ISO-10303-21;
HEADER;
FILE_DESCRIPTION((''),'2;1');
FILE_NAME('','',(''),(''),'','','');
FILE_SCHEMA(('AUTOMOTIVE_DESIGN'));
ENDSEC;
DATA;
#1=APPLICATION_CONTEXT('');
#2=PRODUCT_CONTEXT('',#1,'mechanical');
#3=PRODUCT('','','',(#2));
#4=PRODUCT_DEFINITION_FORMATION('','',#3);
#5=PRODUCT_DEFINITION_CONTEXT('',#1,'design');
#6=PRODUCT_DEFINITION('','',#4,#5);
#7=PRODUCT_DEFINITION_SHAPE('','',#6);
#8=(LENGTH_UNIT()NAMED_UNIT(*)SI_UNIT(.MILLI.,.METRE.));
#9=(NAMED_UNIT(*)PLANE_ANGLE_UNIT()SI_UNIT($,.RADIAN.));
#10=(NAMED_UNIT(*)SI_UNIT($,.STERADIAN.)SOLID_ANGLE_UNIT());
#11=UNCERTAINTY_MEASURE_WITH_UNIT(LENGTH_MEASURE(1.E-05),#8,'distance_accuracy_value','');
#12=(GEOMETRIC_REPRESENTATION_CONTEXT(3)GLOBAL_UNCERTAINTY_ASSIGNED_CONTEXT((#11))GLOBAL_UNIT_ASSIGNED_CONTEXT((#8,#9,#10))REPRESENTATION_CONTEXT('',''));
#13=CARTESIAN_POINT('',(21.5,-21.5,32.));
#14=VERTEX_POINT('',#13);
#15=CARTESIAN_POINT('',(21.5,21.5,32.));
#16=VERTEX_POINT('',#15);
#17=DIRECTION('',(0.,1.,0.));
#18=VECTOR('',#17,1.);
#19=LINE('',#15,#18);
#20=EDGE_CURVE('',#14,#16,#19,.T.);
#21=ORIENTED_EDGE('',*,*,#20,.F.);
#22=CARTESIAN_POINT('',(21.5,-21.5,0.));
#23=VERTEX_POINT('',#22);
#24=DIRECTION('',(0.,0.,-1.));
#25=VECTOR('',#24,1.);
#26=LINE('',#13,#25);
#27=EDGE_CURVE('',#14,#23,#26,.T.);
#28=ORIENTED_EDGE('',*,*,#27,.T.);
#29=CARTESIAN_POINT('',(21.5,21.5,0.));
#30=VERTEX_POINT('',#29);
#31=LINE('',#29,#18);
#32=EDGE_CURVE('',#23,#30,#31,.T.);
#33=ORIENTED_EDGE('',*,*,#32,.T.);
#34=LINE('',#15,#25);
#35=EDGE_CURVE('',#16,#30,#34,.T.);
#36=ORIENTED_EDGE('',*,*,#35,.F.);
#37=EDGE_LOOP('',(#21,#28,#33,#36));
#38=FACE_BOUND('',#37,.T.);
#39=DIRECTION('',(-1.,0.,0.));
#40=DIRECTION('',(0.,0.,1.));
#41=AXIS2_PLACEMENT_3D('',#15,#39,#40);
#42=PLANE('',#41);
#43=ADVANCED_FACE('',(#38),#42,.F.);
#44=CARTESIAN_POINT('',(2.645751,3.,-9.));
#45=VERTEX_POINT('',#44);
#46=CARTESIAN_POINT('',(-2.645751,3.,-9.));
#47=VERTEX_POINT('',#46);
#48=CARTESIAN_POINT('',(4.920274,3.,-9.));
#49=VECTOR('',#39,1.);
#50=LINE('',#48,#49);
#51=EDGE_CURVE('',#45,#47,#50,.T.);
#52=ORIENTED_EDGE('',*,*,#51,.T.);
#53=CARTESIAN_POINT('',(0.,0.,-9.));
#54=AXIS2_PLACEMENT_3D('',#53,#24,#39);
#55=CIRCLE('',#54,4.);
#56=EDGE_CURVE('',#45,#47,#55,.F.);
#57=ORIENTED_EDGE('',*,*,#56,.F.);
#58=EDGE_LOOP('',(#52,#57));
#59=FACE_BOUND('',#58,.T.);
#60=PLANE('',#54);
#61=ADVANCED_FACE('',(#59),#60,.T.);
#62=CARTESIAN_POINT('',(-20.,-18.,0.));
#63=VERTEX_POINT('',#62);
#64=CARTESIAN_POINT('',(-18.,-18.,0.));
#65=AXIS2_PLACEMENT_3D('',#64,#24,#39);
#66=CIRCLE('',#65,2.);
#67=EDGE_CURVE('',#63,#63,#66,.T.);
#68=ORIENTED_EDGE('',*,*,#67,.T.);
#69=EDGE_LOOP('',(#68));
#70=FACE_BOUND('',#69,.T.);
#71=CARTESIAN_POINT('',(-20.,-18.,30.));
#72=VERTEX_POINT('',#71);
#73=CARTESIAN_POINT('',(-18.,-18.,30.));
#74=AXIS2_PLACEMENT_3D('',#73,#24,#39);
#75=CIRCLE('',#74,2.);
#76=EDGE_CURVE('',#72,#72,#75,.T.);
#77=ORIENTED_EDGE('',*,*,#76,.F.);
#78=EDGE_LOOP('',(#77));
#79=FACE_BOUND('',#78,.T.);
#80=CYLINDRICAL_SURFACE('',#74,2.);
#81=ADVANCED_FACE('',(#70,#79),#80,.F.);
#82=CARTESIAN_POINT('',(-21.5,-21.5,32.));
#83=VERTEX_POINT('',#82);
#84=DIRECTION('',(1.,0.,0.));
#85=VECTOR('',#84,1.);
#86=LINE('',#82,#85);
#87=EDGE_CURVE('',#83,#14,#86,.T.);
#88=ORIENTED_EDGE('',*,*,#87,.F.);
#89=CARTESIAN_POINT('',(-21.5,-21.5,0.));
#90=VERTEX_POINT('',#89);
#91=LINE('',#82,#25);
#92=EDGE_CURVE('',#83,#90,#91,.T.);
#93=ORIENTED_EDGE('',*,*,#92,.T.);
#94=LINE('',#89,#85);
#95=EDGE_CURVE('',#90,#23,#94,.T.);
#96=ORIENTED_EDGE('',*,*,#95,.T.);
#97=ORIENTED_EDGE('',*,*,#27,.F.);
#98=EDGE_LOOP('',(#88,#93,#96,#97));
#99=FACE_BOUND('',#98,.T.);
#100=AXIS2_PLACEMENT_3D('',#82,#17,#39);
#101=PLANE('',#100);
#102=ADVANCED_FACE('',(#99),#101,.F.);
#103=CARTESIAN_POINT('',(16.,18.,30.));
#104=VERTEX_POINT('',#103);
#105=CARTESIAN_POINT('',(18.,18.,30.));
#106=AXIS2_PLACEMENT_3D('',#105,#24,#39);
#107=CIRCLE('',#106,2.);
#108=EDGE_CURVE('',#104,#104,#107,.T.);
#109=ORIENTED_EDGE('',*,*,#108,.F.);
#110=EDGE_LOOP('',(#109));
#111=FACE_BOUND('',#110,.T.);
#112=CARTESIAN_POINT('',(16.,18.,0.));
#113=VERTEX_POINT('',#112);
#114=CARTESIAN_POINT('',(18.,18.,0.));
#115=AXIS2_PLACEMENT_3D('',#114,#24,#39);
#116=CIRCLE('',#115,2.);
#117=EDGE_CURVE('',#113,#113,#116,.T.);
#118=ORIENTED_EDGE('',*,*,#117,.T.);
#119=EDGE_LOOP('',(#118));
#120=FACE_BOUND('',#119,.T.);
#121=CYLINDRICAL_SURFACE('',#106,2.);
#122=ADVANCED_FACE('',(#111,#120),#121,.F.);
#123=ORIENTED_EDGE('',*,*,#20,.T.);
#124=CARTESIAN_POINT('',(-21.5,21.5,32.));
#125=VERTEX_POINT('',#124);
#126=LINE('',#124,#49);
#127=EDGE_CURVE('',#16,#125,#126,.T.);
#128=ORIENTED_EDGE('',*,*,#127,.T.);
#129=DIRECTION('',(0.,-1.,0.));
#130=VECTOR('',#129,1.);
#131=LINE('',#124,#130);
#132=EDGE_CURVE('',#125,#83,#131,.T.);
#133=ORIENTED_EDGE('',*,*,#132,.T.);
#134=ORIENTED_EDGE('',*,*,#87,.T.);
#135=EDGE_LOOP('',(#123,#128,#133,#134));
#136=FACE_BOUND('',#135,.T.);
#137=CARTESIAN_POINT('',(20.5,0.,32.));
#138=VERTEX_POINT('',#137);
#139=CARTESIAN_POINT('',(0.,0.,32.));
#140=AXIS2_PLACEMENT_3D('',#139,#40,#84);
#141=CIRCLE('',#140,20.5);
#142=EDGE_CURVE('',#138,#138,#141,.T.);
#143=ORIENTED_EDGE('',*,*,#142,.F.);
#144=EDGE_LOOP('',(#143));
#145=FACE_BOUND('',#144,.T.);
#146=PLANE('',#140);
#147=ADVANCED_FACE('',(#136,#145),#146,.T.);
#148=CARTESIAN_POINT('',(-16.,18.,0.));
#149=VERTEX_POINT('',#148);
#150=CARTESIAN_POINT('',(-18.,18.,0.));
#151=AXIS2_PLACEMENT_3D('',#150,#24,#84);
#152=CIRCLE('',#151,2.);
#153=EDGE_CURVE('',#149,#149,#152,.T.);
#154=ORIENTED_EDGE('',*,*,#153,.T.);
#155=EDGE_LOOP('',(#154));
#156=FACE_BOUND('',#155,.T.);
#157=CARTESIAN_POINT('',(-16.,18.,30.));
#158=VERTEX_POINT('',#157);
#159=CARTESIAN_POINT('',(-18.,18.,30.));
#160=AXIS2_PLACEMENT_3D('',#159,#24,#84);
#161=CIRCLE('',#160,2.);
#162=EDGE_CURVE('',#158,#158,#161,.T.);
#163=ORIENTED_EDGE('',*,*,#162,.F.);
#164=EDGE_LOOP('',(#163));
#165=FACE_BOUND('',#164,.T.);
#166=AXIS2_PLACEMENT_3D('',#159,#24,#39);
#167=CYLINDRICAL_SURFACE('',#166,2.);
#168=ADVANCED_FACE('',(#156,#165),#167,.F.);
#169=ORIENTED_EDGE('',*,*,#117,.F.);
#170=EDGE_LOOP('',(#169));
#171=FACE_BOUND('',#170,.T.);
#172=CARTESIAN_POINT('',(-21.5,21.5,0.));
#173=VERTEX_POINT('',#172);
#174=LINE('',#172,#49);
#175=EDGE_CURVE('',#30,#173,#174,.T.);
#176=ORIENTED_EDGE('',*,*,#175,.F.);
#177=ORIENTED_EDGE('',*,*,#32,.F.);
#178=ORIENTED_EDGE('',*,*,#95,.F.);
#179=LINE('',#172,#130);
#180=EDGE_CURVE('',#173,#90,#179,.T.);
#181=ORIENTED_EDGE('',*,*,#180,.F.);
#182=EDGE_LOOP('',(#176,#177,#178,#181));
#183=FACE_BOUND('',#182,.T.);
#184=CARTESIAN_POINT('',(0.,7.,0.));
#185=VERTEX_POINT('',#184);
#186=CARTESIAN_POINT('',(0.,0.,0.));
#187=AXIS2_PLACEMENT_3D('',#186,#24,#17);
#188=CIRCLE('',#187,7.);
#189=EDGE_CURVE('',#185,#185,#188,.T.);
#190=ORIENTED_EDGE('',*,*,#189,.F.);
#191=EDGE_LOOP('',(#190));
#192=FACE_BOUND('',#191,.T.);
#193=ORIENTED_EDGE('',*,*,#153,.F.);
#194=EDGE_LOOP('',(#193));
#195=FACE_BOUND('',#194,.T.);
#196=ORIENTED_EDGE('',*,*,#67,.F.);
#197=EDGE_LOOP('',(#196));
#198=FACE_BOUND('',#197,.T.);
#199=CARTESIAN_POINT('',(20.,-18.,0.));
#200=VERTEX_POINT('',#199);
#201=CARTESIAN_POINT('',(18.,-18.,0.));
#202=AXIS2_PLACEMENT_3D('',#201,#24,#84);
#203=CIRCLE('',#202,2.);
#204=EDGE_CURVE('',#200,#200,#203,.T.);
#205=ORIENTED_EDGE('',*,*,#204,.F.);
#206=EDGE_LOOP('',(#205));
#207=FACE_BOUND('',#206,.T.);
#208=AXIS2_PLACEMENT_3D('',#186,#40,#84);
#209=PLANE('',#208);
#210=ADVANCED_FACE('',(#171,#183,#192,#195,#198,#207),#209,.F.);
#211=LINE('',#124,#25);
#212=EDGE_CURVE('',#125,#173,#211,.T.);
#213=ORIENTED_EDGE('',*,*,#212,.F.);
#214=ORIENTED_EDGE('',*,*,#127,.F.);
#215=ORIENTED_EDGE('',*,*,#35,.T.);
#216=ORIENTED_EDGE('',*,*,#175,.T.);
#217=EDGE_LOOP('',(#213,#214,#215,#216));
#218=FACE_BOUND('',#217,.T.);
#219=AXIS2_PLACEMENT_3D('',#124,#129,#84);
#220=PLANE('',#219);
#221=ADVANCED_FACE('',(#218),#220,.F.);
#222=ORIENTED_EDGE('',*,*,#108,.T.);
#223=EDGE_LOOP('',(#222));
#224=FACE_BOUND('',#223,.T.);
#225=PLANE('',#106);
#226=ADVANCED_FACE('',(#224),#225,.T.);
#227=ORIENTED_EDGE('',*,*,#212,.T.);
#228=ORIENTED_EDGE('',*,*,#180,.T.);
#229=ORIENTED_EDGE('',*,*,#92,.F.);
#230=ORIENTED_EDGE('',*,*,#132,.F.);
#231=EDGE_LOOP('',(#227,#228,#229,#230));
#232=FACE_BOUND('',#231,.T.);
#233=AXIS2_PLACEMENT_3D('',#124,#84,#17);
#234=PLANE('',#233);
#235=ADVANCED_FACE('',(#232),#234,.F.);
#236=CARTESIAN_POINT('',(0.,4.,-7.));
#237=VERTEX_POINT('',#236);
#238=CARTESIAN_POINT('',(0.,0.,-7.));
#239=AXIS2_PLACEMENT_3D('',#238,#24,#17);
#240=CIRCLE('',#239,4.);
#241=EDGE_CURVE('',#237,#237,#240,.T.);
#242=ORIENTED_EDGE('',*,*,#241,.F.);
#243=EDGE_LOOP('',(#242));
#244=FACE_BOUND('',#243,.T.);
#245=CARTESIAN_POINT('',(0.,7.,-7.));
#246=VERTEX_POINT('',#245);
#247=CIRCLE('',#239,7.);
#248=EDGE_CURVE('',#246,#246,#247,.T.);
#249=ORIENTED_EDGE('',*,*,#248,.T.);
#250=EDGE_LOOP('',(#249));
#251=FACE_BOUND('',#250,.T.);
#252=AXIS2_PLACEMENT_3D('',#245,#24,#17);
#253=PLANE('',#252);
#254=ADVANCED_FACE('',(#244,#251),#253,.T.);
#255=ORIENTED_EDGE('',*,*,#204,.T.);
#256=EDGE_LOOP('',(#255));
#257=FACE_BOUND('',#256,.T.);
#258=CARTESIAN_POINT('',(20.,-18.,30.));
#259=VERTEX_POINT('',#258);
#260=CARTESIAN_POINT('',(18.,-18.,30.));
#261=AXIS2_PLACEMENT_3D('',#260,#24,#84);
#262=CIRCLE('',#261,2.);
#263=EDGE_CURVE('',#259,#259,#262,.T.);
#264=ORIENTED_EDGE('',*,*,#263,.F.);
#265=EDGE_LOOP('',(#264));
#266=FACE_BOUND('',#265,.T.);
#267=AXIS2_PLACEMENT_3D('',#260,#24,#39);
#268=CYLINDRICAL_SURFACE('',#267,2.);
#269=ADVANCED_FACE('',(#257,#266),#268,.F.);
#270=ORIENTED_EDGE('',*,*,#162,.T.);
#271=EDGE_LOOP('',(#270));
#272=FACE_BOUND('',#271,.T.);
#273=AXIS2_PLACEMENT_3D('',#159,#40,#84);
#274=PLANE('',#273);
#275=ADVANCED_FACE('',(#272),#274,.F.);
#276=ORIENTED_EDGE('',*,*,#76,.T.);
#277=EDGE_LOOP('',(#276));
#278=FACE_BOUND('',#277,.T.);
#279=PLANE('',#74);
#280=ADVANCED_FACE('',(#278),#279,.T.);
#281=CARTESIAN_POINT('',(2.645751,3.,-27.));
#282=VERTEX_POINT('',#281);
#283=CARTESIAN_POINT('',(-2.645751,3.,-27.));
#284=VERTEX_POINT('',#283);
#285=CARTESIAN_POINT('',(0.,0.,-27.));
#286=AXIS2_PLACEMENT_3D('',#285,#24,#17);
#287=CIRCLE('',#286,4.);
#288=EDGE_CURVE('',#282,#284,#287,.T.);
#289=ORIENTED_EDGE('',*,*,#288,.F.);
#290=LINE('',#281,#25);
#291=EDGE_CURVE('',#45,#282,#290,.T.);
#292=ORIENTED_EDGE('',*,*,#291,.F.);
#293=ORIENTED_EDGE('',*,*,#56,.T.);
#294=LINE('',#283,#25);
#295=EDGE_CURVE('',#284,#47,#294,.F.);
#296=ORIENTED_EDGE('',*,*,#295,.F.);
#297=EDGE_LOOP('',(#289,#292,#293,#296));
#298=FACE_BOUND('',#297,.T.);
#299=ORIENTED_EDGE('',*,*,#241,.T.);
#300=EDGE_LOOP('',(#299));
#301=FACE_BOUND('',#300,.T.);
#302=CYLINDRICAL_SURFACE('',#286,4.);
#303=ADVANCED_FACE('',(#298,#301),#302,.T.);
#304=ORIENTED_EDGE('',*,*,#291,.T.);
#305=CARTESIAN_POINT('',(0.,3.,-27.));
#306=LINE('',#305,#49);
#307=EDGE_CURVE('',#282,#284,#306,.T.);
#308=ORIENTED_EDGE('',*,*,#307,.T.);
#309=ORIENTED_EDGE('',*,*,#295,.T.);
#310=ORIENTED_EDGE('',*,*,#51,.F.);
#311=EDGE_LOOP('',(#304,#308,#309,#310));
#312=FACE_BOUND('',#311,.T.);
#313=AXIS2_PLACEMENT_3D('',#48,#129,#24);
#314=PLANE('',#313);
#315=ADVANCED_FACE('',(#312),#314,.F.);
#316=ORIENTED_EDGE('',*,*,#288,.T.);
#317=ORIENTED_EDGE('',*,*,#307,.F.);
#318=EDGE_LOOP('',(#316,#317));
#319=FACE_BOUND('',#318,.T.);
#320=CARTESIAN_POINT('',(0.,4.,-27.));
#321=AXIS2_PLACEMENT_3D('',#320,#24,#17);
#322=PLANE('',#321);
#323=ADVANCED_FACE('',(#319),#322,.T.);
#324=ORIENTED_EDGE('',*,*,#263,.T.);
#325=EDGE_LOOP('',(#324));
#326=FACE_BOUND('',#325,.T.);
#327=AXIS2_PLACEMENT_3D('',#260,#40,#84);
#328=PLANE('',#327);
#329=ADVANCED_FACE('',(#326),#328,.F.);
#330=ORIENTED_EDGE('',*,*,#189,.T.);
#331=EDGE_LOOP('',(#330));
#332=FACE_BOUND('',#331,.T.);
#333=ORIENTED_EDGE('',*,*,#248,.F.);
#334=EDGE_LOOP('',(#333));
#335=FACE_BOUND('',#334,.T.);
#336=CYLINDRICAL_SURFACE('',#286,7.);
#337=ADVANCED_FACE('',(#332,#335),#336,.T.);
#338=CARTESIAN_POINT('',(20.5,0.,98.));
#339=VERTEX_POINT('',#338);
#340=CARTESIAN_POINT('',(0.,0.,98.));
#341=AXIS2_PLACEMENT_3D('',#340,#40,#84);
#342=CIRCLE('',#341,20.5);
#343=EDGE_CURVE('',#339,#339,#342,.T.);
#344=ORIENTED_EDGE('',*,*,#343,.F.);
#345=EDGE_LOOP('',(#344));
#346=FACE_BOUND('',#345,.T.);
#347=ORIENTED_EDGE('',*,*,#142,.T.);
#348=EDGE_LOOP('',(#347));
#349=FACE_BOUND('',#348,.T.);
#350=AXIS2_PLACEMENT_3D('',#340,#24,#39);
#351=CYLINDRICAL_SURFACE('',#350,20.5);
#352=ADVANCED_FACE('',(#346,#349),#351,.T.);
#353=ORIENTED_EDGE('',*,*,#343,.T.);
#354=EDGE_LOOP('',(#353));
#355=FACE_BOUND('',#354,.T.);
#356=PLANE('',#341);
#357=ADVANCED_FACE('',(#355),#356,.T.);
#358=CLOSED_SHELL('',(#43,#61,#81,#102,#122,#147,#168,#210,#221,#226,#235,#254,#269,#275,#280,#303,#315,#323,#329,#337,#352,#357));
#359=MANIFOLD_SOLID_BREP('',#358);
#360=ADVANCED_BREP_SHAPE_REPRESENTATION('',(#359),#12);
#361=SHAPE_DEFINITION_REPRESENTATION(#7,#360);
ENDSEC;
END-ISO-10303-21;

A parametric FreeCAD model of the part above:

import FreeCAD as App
import Part
import Sketcher
Q = App.Units.Quantity

doc = App.newDocument("Part")
body = doc.addObject("PartDesign::Body", "Body")

# Sketch on XY plane
sketch1 = body.newObject("Sketcher::SketchObject", "Sketch")
sketch1.AttachmentSupport = (doc.getObject("XY_Plane"), [""])
sketch1.MapMode = "FlatFace"
sketch1.addGeometry([
    Part.LineSegment(App.Vector(-22, 22, 0), App.Vector(-22, -22, 0)),
    Part.LineSegment(App.Vector(-22, -22, 0), App.Vector(22, -22, 0)),
    Part.LineSegment(App.Vector(22, -22, 0), App.Vector(22, 22, 0)),
    Part.LineSegment(App.Vector(22, 22, 0), App.Vector(-22, 22, 0)),
], False)
sketch1.addConstraint([
    Sketcher.Constraint("Coincident", 0, 2, 1, 1),
    Sketcher.Constraint("Coincident", 1, 2, 2, 1),
    Sketcher.Constraint("Coincident", 2, 2, 3, 1),
    Sketcher.Constraint("Coincident", 3, 2, 0, 1),
    Sketcher.Constraint("Vertical", 0),
    Sketcher.Constraint("Horizontal", 1),
    Sketcher.Constraint("Vertical", 2),
    Sketcher.Constraint("Horizontal", 3),
    Sketcher.Constraint("Symmetric", 0, 2, 2, 2, -1, 1),
    Sketcher.Constraint("Equal", 3, 0),
    Sketcher.Constraint("DistanceX", 1, 1, 1, 2, Q("43 mm")),
])
pad1 = body.newObject("PartDesign::Pad", "Pad")
pad1.Profile = sketch1
pad1.Length = 32

# Sketch on YZ plane
sketch2 = body.newObject("Sketcher::SketchObject", "Sketch001")
sketch2.AttachmentSupport = (doc.getObject("YZ_Plane"), [""])
sketch2.MapMode = "FlatFace"
sketch2.addGeometry([
    Part.LineSegment(App.Vector(7, 0, 0), App.Vector(0, 0, 0)),  # 0
    Part.LineSegment(App.Vector(0, 0, 0), App.Vector(0, -27, 0)),  # 1
    Part.LineSegment(App.Vector(0, -27, 0), App.Vector(4, -27, 0)),  # 2
    Part.LineSegment(App.Vector(4, -27, 0), App.Vector(4, -7, 0)),  # 3
    Part.LineSegment(App.Vector(4, -7, 0), App.Vector(7, -7, 0)),  # 4
    Part.LineSegment(App.Vector(7, -7, 0), App.Vector(7, 0, 0)),  # 5
], False)
sketch2.addConstraint([
    Sketcher.Constraint("Coincident", 0, 2, 1, 1),
    Sketcher.Constraint("Coincident", 1, 2, 2, 1),
    Sketcher.Constraint("Coincident", 2, 2, 3, 1),
    Sketcher.Constraint("Coincident", 3, 2, 4, 1),
    Sketcher.Constraint("Coincident", 4, 2, 5, 1),
    Sketcher.Constraint("Coincident", 5, 2, 0, 1),
    Sketcher.Constraint("Horizontal", 0),
    Sketcher.Constraint("Vertical", 1),
    Sketcher.Constraint("Horizontal", 2),
    Sketcher.Constraint("Vertical", 3),
    Sketcher.Constraint("Horizontal", 4),
    Sketcher.Constraint("Vertical", 5),
    Sketcher.Constraint("Coincident", 0, 2, -1, 1),
    Sketcher.Constraint("Equal", 0, 5),
    Sketcher.Constraint("DistanceX", 0, 2, 0, 1, Q("7 mm")),
    Sketcher.Constraint("DistanceX", 2, 1, 2, 2, Q("4 mm")),
    Sketcher.Constraint("DistanceY", 1, 2, 1, 1, Q("27 mm")),
])
revolution = body.newObject("PartDesign::Revolution", "Revolution")
revolution.Profile = sketch2
revolution.ReferenceAxis = (sketch2, ["V_Axis"])
revolution.Angle = 360

# Sketch on XY plane
sketch3 = body.newObject("Sketcher::SketchObject", "Sketch002")
sketch3.AttachmentSupport = (doc.getObject("XY_Plane"), [""])
sketch3.MapMode = "FlatFace"
sketch3.AttachmentOffset = App.Placement(App.Vector(0, 0, -27), App.Rotation())
sketch3.addGeometry([
    Part.LineSegment(App.Vector(4.9, 7.9, 0), App.Vector(4.9, 3, 0)),
    Part.LineSegment(App.Vector(4.9, 3, 0), App.Vector(-5.4, 3, 0)),
    Part.LineSegment(App.Vector(-5.4, 3, 0), App.Vector(-5.4, 7.9, 0)),
    Part.LineSegment(App.Vector(-5.4, 7.9, 0), App.Vector(4.9, 7.9, 0)),
], False)
sketch3.addConstraint([
    Sketcher.Constraint("Coincident", 0, 2, 1, 1),
    Sketcher.Constraint("Coincident", 1, 2, 2, 1),
    Sketcher.Constraint("Coincident", 2, 2, 3, 1),
    Sketcher.Constraint("Coincident", 3, 2, 0, 1),
    Sketcher.Constraint("Vertical", 0),
    Sketcher.Constraint("Horizontal", 1),
    Sketcher.Constraint("Vertical", 2),
    Sketcher.Constraint("Horizontal", 3),
    Sketcher.Constraint("DistanceY", -1, 1, 0, 2, Q("3 mm")),
    Sketcher.Constraint("DistanceX", 1, 2, 1, 1, Q("10.300815 mm")),
    Sketcher.Constraint("DistanceY", 0, 2, 0, 1, Q("4.860244 mm")),
    Sketcher.Constraint("DistanceX", 1, 2, -1, 1, Q("5.380541 mm")),
])
pocket1 = body.newObject("PartDesign::Pocket", "Pocket")
pocket1.Profile = sketch3
pocket1.Length = 18
pocket1.Reversed = True

# Sketch on XY plane
sketch4 = body.newObject("Sketcher::SketchObject", "Sketch003")
sketch4.AttachmentSupport = (doc.getObject("XY_Plane"), [""])
sketch4.MapMode = "FlatFace"
sketch4.AttachmentOffset = App.Placement(App.Vector(0, 0, 32), App.Rotation())
sketch4.addGeometry(Part.Circle(App.Vector(0, 0, 0), App.Vector(0, 0, 1), 20), False)
sketch4.addConstraint([
    Sketcher.Constraint("Coincident", 0, 3, -1, 1),
    Sketcher.Constraint("Diameter", 0, Q("41 mm")),
])
pad2 = body.newObject("PartDesign::Pad", "Pad001")
pad2.Profile = sketch4
pad2.Length = 66

# Sketch on XY plane
sketch5 = body.newObject("Sketcher::SketchObject", "Sketch004")
sketch5.AttachmentSupport = (doc.getObject("XY_Plane"), [""])
sketch5.MapMode = "FlatFace"
sketch5.addGeometry([
    Part.Circle(App.Vector(18, 18, 0), App.Vector(0, 0, 1), 2),
    Part.Circle(App.Vector(-18, 18, 0), App.Vector(0, 0, 1), 2),
    Part.Circle(App.Vector(-18, -18, 0), App.Vector(0, 0, 1), 2),
    Part.Circle(App.Vector(18, -18, 0), App.Vector(0, 0, 1), 2),
], False)
sketch5.addConstraint([
    Sketcher.Constraint("Equal", 0, 1),
    Sketcher.Constraint("Equal", 1, 2),
    Sketcher.Constraint("Equal", 2, 3),
    Sketcher.Constraint("Symmetric", 0, 3, 2, 3, -1, 1),
    Sketcher.Constraint("Symmetric", 1, 3, 3, 3, -1, 1),
    Sketcher.Constraint("Symmetric", 0, 3, 1, 3, -2),
    Sketcher.Constraint("Diameter", 0, Q("4 mm")),
    Sketcher.Constraint("DistanceX", -1, 1, 0, 3, Q("18 mm")),
    Sketcher.Constraint("DistanceY", -1, 1, 0, 3, Q("18 mm")),
])
pocket2 = body.newObject("PartDesign::Pocket", "Pocket001")
pocket2.Profile = sketch5
pocket2.Length = 30
pocket2.Reversed = True

doc.recompute()
